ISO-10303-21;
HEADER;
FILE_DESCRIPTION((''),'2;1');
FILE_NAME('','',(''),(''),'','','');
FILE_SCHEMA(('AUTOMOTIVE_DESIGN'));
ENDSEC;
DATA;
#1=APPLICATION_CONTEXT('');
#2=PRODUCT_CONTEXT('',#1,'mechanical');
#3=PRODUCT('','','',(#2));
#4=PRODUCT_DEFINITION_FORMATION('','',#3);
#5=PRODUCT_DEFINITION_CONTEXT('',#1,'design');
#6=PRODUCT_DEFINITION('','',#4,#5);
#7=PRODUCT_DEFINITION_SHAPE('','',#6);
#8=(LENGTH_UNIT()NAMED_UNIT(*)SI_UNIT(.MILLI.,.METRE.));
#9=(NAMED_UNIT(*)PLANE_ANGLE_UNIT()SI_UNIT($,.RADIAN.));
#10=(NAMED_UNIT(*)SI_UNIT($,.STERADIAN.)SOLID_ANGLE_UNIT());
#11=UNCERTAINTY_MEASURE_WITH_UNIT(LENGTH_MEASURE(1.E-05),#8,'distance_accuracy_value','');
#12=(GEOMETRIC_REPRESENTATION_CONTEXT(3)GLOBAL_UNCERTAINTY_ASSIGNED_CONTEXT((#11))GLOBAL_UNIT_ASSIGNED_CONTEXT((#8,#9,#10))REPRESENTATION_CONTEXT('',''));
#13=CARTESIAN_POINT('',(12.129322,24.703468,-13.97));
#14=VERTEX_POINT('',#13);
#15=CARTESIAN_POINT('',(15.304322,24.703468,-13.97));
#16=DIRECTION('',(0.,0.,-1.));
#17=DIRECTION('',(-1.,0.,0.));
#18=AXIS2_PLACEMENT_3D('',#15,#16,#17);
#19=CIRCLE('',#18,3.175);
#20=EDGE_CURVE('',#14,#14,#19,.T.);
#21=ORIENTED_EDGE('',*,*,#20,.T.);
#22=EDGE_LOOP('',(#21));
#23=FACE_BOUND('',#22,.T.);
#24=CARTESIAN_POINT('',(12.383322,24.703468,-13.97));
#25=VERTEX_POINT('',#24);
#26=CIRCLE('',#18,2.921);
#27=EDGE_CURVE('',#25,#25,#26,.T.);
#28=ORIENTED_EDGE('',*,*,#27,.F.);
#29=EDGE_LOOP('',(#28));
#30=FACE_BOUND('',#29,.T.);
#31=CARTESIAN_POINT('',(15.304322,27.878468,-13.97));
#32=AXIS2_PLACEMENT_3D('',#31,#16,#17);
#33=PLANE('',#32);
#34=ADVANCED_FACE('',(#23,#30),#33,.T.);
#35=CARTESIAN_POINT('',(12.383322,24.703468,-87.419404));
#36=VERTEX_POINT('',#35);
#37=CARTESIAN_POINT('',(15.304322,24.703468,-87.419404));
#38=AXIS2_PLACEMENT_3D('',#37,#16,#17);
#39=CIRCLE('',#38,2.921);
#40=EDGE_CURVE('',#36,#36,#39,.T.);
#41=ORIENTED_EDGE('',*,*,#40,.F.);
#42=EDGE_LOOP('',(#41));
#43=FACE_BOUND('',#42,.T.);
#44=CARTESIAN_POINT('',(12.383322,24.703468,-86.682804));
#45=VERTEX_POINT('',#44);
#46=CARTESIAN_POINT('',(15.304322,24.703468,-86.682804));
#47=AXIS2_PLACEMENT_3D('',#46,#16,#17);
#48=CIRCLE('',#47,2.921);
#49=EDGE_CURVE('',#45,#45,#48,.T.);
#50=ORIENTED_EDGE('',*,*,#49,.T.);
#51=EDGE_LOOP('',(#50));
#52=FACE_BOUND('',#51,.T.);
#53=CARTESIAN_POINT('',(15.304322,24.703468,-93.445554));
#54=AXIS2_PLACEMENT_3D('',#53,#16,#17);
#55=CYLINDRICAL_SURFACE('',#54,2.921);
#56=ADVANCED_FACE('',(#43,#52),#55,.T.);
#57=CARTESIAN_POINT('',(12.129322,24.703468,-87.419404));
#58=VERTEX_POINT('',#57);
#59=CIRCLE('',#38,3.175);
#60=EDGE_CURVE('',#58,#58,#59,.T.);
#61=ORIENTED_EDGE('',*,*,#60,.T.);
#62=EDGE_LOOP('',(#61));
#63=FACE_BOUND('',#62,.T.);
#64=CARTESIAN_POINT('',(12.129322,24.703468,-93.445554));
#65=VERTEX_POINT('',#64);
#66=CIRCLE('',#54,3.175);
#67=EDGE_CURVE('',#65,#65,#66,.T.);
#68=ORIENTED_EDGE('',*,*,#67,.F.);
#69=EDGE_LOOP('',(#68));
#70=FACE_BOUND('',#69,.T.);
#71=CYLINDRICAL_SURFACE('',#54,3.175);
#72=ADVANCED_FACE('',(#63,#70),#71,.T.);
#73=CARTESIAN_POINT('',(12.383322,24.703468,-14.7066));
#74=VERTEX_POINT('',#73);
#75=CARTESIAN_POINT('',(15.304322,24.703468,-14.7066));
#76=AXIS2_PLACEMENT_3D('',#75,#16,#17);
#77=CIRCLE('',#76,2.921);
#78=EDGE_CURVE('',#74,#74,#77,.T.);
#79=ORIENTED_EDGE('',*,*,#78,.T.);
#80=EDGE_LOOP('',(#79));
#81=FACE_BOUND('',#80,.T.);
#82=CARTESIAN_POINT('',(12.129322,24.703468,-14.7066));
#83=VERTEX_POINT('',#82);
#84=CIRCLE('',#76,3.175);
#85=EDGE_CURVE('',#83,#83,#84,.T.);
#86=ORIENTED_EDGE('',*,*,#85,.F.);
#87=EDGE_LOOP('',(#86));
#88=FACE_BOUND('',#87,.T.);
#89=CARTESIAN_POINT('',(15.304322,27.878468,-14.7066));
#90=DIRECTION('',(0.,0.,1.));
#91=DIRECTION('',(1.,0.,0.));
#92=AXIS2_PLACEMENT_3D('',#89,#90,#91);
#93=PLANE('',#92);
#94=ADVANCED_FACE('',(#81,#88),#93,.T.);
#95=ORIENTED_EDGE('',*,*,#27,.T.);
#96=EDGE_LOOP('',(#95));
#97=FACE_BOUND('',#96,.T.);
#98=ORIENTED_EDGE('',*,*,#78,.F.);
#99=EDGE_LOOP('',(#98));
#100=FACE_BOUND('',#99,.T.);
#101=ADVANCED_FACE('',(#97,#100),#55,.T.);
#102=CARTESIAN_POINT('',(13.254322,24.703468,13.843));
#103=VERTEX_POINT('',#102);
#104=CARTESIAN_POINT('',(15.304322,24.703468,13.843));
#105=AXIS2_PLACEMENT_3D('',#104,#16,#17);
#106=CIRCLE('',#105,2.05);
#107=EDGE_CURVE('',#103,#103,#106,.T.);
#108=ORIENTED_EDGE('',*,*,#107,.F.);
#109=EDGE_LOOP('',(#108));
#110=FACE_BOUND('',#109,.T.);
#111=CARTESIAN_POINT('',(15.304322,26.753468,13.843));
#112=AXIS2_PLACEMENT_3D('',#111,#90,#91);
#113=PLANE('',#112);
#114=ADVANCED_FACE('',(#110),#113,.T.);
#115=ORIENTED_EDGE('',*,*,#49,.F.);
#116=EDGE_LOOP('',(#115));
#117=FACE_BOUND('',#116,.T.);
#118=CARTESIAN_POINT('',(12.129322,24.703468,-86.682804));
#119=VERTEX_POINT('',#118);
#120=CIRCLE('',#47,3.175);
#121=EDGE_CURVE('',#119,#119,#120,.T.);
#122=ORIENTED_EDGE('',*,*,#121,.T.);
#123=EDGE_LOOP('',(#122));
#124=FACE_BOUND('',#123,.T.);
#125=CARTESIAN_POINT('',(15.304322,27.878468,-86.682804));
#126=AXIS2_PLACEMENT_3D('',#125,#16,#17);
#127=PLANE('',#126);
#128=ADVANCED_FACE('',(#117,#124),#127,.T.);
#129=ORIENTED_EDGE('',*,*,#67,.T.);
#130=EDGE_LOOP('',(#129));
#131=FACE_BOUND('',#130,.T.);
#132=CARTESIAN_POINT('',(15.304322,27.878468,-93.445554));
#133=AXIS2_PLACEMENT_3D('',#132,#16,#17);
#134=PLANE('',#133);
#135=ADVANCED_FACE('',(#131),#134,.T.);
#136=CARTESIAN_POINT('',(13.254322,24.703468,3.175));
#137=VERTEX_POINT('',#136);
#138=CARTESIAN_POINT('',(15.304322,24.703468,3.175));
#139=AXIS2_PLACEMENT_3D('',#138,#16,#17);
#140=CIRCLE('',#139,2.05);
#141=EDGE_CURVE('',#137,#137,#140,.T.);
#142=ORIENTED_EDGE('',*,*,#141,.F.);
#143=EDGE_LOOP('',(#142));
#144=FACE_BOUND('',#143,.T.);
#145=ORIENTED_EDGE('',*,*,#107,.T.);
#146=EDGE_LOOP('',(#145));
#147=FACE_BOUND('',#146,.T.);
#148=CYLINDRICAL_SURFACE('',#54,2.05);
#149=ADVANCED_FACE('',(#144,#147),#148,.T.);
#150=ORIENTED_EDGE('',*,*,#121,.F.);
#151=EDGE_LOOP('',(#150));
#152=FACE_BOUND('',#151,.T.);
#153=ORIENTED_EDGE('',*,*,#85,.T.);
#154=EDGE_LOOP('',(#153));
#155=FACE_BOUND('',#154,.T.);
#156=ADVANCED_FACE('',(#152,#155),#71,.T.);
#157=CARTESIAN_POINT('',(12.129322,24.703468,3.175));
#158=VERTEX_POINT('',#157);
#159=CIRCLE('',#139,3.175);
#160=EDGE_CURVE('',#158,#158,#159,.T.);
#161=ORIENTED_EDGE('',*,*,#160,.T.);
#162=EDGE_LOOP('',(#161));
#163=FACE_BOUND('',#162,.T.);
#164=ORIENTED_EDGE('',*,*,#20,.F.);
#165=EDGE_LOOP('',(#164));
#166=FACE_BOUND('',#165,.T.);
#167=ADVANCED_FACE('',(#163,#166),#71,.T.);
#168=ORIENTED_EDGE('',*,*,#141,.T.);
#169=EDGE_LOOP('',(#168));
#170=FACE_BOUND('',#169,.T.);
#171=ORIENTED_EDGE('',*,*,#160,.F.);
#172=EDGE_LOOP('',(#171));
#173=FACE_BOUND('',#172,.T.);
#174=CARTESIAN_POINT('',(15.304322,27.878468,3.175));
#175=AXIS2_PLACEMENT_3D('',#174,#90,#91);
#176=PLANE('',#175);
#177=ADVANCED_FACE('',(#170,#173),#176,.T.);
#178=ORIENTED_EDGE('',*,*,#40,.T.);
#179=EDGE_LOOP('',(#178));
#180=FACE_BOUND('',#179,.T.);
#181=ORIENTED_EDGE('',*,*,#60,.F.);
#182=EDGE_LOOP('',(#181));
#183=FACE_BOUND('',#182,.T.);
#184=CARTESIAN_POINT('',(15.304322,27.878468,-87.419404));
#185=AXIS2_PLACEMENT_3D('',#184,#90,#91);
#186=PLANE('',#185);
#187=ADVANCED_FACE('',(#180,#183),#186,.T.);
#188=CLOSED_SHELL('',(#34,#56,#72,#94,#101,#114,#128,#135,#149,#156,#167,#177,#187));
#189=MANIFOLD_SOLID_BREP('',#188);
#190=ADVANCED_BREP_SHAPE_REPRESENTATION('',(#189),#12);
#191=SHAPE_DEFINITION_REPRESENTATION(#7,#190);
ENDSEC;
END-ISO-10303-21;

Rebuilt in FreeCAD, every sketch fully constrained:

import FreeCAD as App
import Part
import Sketcher
from FreeCAD import Vector
Q = App.Units.Quantity

doc = App.newDocument("Part")
body = doc.addObject("PartDesign::Body", "Body")

# Sketch on YZ plane
sketch1 = body.newObject("Sketcher::SketchObject", "Sketch")
sketch1.AttachmentSupport = (doc.getObject("YZ_Plane"), [""])
sketch1.MapMode = "FlatFace"
sketch1.AttachmentOffset = App.Placement(Vector(0, 0, 15.304322), App.Rotation())
sketch1.addGeometry([
    Part.LineSegment(Vector(27.88, -13.97, 0), Vector(27.88, 3.17, 0)),  # 0
    Part.LineSegment(Vector(27.88, 3.17, 0), Vector(26.75, 3.17, 0)),  # 1
    Part.LineSegment(Vector(26.75, 3.17, 0), Vector(26.75, 13.84, 0)),  # 2
    Part.LineSegment(Vector(26.75, 13.84, 0), Vector(24.7, 13.84, 0)),  # 3
    Part.LineSegment(Vector(24.7, 13.84, 0), Vector(24.7, -93.45, 0)),  # 4
    Part.LineSegment(Vector(24.7, -93.45, 0), Vector(27.88, -93.45, 0)),  # 5
    Part.LineSegment(Vector(27.88, -93.45, 0), Vector(27.88, -87.42, 0)),  # 6
    Part.LineSegment(Vector(27.88, -87.42, 0), Vector(27.62, -87.42, 0)),  # 7
    Part.LineSegment(Vector(27.62, -87.42, 0), Vector(27.62, -86.68, 0)),  # 8
    Part.LineSegment(Vector(27.62, -86.68, 0), Vector(27.88, -86.68, 0)),  # 9
    Part.LineSegment(Vector(27.88, -86.68, 0), Vector(27.88, -14.71, 0)),  # 10
    Part.LineSegment(Vector(27.88, -14.71, 0), Vector(27.62, -14.71, 0)),  # 11
    Part.LineSegment(Vector(27.62, -14.71, 0), Vector(27.62, -13.97, 0)),  # 12
    Part.LineSegment(Vector(27.62, -13.97, 0), Vector(27.88, -13.97, 0)),  # 13
], False)
sketch1.addGeometry(Part.LineSegment(Vector(24.7, -93.45, 0), Vector(24.7, 13.84, 0)), True)  # axis
sketch1.addConstraint([
    Sketcher.Constraint("Coincident", 0, 2, 1, 1),
    Sketcher.Constraint("Coincident", 1, 2, 2, 1),
    Sketcher.Constraint("Coincident", 2, 2, 3, 1),
    Sketcher.Constraint("Coincident", 3, 2, 4, 1),
    Sketcher.Constraint("Coincident", 4, 2, 5, 1),
    Sketcher.Constraint("Coincident", 5, 2, 6, 1),
    Sketcher.Constraint("Coincident", 6, 2, 7, 1),
    Sketcher.Constraint("Coincident", 7, 2, 8, 1),
    Sketcher.Constraint("Coincident", 8, 2, 9, 1),
    Sketcher.Constraint("Coincident", 9, 2, 10, 1),
    Sketcher.Constraint("Coincident", 10, 2, 11, 1),
    Sketcher.Constraint("Coincident", 11, 2, 12, 1),
    Sketcher.Constraint("Coincident", 12, 2, 13, 1),
    Sketcher.Constraint("Coincident", 13, 2, 0, 1),
    Sketcher.Constraint("Vertical", 0),
    Sketcher.Constraint("Horizontal", 1),
    Sketcher.Constraint("Vertical", 2),
    Sketcher.Constraint("Horizontal", 3),
    Sketcher.Constraint("Vertical", 4),
    Sketcher.Constraint("Horizontal", 5),
    Sketcher.Constraint("Vertical", 6),
    Sketcher.Constraint("Horizontal", 7),
    Sketcher.Constraint("Vertical", 8),
    Sketcher.Constraint("Horizontal", 9),
    Sketcher.Constraint("Vertical", 10),
    Sketcher.Constraint("Horizontal", 11),
    Sketcher.Constraint("Vertical", 12),
    Sketcher.Constraint("Horizontal", 13),
    Sketcher.Constraint("Vertical", 14),
    Sketcher.Constraint("Coincident", 14, 1, 4, 2),
    Sketcher.Constraint("Horizontal", 2, 2, 14, 2),
    Sketcher.Constraint("Vertical", 0, 2, 5, 2),
    Sketcher.Constraint("Vertical", 6, 2, 9, 2),
    Sketcher.Constraint("Vertical", 8, 2, 11, 2),
    Sketcher.Constraint("Equal", 8, 12),
    Sketcher.Constraint("DistanceX", 7, 2, 7, 1, Q("0.01 in")),
    Sketcher.Constraint("DistanceY", 2, 1, 2, 2, Q("0.42 in")),
    Sketcher.Constraint("DistanceX", 5, 1, 5, 2, Q("0.125 in")),
    Sketcher.Constraint("DistanceY", 0, 1, 0, 2, Q("0.675 in")),
    Sketcher.Constraint("DistanceY", 8, 1, 8, 2, Q("0.029 in")),
    Sketcher.Constraint("DistanceY", 12, 2, -1, 1, Q("0.55 in")),
    Sketcher.Constraint("DistanceX", 1, 2, 1, 1, 1.125),
    Sketcher.Constraint("DistanceY", 6, 1, 6, 2, 6.02615),
    Sketcher.Constraint("DistanceY", 4, 2, 4, 1, 107.288554),
    Sketcher.Constraint("DistanceX", -1, 1, 0, 2, 27.878468),
])
revolution = body.newObject("PartDesign::Revolution", "Revolution")
revolution.Profile = sketch1
revolution.ReferenceAxis = (sketch1, ["Axis0"])
revolution.Angle = 360

doc.recompute()
